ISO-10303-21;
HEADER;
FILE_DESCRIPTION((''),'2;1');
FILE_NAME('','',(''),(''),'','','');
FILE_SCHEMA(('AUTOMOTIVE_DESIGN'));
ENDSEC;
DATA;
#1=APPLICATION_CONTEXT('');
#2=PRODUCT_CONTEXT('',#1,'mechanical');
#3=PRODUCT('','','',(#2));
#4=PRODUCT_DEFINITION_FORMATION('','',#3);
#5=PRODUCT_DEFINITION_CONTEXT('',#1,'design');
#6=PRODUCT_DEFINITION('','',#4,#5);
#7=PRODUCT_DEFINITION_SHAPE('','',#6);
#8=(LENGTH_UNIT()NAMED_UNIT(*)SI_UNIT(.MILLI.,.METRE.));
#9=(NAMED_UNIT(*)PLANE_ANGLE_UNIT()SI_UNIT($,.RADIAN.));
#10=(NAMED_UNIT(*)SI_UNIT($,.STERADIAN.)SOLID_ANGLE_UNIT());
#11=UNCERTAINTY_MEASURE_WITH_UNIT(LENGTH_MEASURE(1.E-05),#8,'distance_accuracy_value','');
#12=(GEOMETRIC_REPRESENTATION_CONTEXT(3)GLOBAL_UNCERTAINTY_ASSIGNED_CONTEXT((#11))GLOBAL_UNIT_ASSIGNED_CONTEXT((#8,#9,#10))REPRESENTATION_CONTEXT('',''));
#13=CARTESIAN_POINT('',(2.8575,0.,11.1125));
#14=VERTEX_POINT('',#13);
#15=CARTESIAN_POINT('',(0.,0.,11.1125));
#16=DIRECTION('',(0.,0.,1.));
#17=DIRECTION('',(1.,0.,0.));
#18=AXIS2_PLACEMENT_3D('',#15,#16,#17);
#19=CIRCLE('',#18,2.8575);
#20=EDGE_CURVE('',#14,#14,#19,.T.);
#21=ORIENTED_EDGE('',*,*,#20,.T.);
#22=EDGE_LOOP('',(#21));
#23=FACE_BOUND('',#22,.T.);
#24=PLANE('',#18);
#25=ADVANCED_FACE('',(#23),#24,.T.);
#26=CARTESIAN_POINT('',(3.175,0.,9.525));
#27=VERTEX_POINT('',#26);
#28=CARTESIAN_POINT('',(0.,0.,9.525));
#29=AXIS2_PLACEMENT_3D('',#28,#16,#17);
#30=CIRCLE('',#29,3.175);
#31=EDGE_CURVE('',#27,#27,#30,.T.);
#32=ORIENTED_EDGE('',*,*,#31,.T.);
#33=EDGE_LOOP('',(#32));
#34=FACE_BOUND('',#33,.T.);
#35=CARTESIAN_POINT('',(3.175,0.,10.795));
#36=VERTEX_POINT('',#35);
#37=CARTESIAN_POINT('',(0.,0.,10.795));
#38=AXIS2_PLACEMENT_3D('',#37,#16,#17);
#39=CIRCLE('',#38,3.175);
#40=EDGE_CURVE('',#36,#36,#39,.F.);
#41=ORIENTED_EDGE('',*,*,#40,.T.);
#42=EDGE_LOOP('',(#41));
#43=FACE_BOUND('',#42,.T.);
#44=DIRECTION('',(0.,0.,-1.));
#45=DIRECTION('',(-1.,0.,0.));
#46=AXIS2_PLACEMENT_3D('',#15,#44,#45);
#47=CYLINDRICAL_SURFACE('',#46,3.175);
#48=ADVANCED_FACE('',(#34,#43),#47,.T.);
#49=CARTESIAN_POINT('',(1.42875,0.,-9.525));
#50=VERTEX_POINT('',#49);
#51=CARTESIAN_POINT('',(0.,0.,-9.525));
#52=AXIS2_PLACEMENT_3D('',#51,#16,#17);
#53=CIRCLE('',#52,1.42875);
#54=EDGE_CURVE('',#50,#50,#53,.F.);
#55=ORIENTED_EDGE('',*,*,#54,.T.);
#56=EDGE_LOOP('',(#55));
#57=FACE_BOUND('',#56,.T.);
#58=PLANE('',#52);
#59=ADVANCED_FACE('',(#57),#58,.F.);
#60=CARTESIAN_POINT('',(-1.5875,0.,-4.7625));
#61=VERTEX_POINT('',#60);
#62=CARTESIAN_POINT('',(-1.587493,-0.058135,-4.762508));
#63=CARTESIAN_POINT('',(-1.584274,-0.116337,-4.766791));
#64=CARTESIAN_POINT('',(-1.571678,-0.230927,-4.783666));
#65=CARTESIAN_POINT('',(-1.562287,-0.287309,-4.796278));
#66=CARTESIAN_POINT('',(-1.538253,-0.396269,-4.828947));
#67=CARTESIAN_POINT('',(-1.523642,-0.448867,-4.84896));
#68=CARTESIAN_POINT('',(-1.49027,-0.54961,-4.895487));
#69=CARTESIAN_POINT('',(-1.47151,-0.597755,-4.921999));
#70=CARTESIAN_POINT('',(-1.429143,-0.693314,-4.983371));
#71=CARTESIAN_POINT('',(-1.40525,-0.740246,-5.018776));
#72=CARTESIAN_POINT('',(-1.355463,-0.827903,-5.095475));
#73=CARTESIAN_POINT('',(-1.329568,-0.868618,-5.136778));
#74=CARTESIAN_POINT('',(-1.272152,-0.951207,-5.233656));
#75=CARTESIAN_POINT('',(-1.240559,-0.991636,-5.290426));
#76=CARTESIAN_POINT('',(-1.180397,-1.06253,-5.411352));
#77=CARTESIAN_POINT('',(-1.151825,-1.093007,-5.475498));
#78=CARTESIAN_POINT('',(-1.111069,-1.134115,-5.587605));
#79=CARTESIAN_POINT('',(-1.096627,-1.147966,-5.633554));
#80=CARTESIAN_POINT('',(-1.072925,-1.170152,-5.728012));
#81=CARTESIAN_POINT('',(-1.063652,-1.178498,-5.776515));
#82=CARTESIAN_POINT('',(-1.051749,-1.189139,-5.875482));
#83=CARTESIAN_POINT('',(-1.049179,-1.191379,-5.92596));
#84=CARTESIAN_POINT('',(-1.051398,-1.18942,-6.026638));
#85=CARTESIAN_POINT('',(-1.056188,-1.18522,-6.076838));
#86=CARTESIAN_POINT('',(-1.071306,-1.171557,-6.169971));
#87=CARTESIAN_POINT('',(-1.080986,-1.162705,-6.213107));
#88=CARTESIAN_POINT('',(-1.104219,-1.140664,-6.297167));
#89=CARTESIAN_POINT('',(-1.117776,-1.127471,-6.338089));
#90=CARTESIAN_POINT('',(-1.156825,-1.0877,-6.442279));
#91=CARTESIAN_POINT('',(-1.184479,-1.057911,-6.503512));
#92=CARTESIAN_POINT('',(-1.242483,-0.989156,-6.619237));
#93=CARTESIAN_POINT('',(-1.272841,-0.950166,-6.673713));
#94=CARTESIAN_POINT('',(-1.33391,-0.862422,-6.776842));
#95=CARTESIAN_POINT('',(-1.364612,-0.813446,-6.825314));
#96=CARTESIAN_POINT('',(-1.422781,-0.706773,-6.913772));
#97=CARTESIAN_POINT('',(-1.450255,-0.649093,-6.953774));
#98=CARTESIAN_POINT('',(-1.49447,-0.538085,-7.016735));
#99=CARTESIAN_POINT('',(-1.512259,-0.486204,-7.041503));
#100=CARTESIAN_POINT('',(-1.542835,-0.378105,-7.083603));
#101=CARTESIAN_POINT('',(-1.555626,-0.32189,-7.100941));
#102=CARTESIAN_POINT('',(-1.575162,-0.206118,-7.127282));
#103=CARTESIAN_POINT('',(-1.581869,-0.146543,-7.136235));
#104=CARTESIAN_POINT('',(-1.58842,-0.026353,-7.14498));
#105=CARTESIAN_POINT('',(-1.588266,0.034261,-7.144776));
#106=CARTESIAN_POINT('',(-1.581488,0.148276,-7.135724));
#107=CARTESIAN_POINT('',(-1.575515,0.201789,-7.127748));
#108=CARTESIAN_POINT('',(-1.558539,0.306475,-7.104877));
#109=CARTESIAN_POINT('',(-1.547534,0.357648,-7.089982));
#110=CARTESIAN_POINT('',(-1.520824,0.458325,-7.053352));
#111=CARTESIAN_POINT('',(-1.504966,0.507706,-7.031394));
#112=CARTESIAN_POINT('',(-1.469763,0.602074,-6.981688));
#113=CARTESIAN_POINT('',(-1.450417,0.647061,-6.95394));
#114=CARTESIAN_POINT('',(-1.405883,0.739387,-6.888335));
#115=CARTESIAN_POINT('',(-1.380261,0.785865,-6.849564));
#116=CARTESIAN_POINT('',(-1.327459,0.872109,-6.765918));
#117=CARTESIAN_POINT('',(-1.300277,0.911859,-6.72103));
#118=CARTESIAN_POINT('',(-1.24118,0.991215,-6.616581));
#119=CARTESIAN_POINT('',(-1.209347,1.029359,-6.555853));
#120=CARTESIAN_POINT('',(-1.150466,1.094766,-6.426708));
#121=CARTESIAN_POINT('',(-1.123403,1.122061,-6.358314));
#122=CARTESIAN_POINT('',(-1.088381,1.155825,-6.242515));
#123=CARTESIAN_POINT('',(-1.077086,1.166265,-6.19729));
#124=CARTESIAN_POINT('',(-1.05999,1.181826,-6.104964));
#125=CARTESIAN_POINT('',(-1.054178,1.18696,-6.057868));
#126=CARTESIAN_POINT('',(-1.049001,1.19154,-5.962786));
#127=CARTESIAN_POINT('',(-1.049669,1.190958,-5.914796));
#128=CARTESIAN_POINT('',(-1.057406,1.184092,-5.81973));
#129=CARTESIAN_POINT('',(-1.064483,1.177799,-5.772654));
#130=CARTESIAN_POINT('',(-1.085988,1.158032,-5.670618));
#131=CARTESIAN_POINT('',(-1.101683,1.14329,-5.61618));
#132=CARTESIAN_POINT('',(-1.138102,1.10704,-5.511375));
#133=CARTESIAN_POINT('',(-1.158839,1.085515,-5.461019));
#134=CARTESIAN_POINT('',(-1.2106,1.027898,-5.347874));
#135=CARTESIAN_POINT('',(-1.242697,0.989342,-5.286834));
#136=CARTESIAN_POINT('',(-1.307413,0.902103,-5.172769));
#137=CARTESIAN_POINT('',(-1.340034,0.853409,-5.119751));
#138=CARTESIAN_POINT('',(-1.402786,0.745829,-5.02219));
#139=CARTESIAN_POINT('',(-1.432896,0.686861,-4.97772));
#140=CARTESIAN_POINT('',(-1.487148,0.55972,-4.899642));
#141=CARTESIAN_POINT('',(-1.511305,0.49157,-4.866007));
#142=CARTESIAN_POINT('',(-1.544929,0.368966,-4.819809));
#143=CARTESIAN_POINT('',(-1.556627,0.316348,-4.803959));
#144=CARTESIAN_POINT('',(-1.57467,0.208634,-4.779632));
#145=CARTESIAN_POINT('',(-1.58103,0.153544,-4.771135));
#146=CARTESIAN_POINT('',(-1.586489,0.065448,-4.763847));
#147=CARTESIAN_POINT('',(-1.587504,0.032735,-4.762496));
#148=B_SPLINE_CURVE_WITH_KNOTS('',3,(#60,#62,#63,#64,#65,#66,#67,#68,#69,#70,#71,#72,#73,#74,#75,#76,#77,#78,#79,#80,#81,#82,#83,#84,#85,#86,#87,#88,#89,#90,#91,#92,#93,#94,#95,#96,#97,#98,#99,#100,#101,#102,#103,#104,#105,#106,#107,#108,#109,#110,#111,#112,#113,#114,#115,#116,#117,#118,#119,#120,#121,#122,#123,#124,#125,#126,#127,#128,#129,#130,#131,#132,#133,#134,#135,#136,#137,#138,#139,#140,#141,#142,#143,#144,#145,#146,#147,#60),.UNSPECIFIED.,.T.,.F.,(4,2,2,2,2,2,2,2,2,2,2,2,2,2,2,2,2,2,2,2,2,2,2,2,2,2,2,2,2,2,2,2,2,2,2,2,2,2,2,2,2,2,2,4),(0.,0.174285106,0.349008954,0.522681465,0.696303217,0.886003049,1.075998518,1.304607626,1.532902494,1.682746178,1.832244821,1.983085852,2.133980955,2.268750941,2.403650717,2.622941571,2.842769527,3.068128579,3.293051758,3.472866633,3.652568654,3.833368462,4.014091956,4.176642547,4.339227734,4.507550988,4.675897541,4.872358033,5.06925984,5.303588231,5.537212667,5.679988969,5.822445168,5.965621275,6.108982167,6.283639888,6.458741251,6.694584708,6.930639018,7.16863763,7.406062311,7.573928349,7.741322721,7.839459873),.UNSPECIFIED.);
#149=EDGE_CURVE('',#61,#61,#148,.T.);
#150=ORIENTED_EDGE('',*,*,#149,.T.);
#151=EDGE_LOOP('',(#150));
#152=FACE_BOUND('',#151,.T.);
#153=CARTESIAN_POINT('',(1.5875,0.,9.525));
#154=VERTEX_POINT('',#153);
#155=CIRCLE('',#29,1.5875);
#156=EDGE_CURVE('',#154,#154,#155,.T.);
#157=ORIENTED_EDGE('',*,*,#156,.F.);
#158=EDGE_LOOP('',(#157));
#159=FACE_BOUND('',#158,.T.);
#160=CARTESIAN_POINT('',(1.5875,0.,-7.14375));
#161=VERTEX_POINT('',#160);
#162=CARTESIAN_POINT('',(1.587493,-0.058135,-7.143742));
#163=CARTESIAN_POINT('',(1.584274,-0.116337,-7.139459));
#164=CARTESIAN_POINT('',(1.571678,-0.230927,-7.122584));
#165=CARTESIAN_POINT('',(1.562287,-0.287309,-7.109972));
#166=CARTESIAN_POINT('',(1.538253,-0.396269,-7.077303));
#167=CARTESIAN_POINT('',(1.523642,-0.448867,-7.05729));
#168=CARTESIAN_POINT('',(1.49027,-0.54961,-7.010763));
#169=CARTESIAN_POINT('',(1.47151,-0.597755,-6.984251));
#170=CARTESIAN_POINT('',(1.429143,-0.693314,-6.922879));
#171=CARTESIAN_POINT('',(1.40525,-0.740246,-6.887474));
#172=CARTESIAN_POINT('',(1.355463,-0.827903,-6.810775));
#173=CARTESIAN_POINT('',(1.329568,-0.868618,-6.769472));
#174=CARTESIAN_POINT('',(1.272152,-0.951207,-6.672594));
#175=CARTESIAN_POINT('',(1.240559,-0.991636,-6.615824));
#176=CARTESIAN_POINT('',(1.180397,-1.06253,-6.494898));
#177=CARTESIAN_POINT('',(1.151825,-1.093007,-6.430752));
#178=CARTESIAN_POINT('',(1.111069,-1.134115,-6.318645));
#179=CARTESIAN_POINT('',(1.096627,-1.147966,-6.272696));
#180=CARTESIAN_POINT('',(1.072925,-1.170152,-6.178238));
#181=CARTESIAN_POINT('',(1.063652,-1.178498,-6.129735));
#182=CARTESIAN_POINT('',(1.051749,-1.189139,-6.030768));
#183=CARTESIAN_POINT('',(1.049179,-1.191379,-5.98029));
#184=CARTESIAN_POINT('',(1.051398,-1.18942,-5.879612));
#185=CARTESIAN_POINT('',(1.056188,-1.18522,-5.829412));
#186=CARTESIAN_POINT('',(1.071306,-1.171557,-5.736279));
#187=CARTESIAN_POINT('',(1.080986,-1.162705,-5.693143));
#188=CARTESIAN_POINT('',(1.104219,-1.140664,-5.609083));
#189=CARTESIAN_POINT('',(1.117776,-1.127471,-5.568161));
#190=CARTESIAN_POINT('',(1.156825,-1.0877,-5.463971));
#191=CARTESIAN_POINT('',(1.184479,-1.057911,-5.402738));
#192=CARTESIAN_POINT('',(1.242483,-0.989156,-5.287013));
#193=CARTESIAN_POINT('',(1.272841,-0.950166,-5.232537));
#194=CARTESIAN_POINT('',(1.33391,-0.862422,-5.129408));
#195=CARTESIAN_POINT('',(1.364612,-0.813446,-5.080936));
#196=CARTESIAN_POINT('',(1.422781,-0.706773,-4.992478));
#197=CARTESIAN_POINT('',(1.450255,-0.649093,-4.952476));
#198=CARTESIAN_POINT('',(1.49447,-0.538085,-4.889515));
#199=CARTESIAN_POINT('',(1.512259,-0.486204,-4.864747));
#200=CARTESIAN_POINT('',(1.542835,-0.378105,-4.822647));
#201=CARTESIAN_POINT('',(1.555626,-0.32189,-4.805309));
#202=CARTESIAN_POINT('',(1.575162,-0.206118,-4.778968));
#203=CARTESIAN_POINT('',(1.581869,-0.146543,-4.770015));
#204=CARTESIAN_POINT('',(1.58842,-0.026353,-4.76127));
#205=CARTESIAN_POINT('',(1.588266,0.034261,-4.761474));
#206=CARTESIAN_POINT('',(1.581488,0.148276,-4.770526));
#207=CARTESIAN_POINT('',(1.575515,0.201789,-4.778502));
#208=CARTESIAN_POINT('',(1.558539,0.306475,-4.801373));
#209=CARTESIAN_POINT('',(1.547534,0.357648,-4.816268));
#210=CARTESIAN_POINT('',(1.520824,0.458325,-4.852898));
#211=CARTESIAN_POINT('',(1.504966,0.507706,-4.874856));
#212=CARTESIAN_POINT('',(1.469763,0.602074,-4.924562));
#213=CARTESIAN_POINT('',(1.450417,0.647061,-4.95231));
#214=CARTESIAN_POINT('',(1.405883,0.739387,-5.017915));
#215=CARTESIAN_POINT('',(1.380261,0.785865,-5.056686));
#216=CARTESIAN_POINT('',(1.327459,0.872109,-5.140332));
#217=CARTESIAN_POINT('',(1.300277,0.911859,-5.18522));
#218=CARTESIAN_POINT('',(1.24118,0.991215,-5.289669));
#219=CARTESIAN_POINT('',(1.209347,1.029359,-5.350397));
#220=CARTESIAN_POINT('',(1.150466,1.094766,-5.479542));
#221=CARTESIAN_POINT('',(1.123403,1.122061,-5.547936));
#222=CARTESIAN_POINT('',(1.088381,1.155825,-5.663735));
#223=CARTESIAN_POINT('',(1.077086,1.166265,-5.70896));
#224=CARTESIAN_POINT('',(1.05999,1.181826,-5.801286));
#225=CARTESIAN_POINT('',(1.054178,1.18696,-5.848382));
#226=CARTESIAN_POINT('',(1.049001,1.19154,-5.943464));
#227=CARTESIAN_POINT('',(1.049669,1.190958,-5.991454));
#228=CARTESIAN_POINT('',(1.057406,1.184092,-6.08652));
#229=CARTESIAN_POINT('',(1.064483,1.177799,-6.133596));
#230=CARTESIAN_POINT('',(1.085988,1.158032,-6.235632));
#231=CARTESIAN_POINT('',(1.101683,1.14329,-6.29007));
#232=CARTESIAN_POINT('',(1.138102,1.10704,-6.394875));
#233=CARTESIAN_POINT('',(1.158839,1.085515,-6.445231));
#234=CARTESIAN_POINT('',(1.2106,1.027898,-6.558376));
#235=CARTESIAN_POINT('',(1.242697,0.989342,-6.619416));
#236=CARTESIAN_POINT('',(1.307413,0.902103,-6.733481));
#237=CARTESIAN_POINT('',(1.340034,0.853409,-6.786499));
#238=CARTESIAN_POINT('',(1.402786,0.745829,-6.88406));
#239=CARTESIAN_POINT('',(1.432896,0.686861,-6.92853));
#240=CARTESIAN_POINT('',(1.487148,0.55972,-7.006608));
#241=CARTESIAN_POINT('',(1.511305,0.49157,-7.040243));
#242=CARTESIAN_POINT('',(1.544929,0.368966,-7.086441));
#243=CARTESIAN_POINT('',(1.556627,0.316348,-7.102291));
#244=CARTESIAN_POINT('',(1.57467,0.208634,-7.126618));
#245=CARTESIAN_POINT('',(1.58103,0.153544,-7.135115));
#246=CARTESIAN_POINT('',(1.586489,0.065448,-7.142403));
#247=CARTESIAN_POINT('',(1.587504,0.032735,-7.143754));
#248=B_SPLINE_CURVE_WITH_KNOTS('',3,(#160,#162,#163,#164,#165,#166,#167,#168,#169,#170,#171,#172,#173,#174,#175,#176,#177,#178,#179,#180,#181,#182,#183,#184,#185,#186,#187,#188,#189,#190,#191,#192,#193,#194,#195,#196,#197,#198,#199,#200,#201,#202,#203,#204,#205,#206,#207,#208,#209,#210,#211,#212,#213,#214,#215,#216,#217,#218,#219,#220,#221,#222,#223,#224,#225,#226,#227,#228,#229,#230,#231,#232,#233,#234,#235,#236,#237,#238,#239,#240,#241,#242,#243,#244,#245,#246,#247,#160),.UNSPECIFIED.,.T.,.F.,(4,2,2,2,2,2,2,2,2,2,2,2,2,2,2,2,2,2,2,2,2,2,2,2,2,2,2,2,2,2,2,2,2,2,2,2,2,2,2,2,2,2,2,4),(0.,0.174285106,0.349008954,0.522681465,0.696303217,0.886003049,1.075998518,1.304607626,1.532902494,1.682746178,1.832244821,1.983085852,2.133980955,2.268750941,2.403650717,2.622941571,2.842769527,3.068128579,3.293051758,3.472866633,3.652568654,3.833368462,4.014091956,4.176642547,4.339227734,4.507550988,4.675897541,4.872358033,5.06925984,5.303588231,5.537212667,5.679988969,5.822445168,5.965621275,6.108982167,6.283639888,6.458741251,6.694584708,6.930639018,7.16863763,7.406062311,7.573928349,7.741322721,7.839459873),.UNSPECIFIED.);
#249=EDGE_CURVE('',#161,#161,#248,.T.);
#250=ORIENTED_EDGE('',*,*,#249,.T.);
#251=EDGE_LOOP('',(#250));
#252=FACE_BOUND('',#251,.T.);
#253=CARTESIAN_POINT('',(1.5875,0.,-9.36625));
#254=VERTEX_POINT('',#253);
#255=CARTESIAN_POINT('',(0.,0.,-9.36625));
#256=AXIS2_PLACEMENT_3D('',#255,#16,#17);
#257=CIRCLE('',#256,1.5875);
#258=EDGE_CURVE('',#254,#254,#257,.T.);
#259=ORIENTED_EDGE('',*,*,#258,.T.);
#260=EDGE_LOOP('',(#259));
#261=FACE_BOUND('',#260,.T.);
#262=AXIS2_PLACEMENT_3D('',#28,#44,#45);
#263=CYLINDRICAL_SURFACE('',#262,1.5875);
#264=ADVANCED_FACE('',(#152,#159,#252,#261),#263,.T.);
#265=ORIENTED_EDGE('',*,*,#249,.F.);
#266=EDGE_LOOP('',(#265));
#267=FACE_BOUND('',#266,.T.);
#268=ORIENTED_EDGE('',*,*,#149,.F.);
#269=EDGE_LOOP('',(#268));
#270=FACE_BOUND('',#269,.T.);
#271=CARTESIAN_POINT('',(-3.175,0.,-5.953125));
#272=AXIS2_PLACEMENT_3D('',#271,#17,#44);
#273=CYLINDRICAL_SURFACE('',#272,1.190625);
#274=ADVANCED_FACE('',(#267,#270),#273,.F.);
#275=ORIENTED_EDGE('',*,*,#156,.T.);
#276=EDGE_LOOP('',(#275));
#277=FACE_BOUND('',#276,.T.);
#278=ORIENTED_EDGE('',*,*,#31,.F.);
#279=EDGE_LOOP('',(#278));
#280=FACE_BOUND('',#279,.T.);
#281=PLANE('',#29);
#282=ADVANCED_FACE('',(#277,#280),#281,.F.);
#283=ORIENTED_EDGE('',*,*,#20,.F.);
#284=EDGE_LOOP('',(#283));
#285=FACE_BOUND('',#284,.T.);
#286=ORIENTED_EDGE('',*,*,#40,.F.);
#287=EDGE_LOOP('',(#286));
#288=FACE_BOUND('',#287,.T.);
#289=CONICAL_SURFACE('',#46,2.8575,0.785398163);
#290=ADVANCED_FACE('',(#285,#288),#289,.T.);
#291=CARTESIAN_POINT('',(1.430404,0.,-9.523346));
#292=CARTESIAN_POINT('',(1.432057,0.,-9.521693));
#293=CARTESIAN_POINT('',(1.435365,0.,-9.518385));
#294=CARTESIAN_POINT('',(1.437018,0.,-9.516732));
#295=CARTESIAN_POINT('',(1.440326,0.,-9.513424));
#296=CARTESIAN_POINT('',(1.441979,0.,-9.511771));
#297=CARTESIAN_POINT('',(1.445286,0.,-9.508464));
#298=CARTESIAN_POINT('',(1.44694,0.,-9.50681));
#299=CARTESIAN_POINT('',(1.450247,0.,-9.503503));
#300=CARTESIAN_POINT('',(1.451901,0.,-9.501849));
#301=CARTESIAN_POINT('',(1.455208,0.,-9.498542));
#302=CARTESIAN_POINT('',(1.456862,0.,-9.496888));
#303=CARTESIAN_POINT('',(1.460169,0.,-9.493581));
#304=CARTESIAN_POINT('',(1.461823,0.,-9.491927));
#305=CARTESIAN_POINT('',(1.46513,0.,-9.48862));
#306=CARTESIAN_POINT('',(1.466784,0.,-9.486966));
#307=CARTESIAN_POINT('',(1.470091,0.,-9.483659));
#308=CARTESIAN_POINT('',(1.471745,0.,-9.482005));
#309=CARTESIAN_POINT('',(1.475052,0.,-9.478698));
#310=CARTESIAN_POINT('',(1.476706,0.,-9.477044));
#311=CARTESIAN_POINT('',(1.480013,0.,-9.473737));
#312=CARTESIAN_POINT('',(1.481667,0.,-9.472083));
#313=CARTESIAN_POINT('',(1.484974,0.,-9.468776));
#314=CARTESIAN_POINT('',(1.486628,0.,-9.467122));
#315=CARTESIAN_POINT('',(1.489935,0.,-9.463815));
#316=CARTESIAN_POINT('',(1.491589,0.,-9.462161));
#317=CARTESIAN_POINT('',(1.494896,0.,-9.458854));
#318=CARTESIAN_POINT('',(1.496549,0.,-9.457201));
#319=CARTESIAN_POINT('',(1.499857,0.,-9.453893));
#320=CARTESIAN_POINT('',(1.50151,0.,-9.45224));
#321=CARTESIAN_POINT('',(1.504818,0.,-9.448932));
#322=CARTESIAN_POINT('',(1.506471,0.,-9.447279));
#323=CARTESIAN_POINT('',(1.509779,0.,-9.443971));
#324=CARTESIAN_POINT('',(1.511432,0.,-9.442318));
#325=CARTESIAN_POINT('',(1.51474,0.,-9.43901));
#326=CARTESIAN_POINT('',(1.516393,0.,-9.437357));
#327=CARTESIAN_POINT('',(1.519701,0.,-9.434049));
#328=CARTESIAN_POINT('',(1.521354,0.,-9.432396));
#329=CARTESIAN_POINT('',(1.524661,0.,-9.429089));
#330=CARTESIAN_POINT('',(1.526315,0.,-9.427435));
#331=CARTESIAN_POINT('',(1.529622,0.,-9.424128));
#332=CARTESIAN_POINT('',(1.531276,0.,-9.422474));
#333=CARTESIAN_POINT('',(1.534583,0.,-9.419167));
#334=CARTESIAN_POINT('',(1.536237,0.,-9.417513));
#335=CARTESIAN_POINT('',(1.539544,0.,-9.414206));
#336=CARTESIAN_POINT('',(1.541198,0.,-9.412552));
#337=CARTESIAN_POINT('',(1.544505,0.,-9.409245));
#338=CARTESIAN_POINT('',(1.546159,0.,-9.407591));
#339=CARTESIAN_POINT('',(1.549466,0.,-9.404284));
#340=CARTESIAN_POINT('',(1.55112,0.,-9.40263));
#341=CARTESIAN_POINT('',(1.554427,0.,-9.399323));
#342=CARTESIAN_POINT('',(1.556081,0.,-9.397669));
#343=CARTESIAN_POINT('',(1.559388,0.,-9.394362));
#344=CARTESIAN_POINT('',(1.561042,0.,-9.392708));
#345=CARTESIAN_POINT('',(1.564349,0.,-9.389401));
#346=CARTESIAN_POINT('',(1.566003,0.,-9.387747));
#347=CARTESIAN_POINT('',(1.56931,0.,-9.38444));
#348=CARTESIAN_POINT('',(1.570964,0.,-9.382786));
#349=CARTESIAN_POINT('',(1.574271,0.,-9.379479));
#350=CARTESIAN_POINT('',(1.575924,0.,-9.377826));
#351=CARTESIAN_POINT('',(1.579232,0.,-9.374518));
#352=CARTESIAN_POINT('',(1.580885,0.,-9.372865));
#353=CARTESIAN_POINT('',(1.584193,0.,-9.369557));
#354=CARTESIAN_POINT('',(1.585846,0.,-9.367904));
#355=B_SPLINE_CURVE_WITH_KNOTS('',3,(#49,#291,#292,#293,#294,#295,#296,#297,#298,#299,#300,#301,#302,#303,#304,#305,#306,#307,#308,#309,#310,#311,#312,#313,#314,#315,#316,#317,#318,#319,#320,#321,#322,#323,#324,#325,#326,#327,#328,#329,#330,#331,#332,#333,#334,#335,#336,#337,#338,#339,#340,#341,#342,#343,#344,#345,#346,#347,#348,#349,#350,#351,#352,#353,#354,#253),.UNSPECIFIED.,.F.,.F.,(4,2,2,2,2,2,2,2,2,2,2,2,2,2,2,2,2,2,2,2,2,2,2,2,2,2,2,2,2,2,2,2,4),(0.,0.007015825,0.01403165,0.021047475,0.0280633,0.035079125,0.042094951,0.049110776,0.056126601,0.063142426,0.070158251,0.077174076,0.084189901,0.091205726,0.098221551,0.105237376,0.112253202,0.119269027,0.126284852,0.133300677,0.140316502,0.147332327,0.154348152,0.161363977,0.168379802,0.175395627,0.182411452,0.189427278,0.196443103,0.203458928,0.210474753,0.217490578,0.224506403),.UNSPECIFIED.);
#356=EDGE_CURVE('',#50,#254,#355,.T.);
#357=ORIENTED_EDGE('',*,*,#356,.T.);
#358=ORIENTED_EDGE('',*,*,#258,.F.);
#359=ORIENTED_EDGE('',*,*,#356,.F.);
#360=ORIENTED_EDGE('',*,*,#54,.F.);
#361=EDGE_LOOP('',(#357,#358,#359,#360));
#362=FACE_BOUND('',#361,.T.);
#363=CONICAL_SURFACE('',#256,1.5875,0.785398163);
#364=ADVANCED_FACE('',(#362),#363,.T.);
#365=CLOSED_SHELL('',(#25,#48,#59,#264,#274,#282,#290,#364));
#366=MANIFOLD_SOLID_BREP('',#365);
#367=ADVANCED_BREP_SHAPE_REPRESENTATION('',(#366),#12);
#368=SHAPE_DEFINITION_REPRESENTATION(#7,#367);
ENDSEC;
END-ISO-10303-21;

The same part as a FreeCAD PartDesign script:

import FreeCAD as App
import Part
import Sketcher
from FreeCAD import Vector
Q = App.Units.Quantity


def edges_at(feature, points):
    """Names of the edges that pass closest to the given points."""
    edges = feature.Shape.Edges
    near = lambda p: min(range(len(edges)), key=lambda i: edges[i].distToShape(Part.Vertex(*p))[0])
    return sorted({f"Edge{near(p) + 1}" for p in points})

doc = App.newDocument("Part")
body = doc.addObject("PartDesign::Body", "Body")

# Sketch on XY plane
sketch1 = body.newObject("Sketcher::SketchObject", "Sketch")
sketch1.AttachmentSupport = (doc.getObject("XY_Plane"), [""])
sketch1.MapMode = "FlatFace"
sketch1.addGeometry(Part.Circle(Vector(0, 0, 0), Vector(0, 0, 1), 1.6), False)
sketch1.addConstraint(Sketcher.Constraint("Coincident", 0, 3, -1, 1))
sketch1.addConstraint(Sketcher.Constraint("Diameter", 0, Q("0.125 in")))
pad1 = body.newObject("PartDesign::Pad", "Pad")
pad1.Profile = sketch1
pad1.Length = Q("0.75 in")
pad1.Midplane = True

# Sketch on XY plane
sketch2 = body.newObject("Sketcher::SketchObject", "Sketch001")
sketch2.AttachmentSupport = (doc.getObject("XY_Plane"), [""])
sketch2.MapMode = "FlatFace"
sketch2.AttachmentOffset = App.Placement(Vector(0, 0, 0.375 * 25.4), App.Rotation())
sketch2.addGeometry(Part.Circle(Vector(0, 0, 0), Vector(0, 0, 1), 3.2), False)
sketch2.addConstraint(Sketcher.Constraint("Coincident", 0, 3, -1, 1))
sketch2.addConstraint(Sketcher.Constraint("Diameter", 0, Q("0.25 in")))
pad2 = body.newObject("PartDesign::Pad", "Pad001")
pad2.Profile = sketch2
pad2.Length = Q("0.0625 in")
doc.recompute()

chamfer = body.newObject("PartDesign::Chamfer", "Chamfer")
chamfer.Base = (pad2, edges_at(pad2, [(-3.175, 0, 11.113)]))
chamfer.Size = Q("0.0125 in")

# Sketch on YZ plane
sketch3 = body.newObject("Sketcher::SketchObject", "Sketch002")
sketch3.AttachmentSupport = (doc.getObject("YZ_Plane"), [""])
sketch3.MapMode = "FlatFace"
sketch3.addGeometry(Part.Circle(Vector(0, -6, 0), Vector(0, 0, 1), 1.2), False)
sketch3.addConstraint(Sketcher.Constraint("PointOnObject", 0, 3, -2))
sketch3.addConstraint(Sketcher.Constraint("Diameter", 0, Q("0.09375 in")))
sketch3.addConstraint(Sketcher.Constraint("DistanceY", 0, 3, -1, 1, Q("0.234375 in")))
pocket1 = body.newObject("PartDesign::Pocket", "Pocket")
pocket1.Profile = sketch3
pocket1.Type = "ThroughAll"
pocket1.Midplane = True
doc.recompute()

chamfer2 = body.newObject("PartDesign::Chamfer", "Chamfer001")
chamfer2.Base = (pocket1, edges_at(pocket1, [(1.587, 0, -9.525)]))
chamfer2.Size = 0.15875

doc.recompute()
